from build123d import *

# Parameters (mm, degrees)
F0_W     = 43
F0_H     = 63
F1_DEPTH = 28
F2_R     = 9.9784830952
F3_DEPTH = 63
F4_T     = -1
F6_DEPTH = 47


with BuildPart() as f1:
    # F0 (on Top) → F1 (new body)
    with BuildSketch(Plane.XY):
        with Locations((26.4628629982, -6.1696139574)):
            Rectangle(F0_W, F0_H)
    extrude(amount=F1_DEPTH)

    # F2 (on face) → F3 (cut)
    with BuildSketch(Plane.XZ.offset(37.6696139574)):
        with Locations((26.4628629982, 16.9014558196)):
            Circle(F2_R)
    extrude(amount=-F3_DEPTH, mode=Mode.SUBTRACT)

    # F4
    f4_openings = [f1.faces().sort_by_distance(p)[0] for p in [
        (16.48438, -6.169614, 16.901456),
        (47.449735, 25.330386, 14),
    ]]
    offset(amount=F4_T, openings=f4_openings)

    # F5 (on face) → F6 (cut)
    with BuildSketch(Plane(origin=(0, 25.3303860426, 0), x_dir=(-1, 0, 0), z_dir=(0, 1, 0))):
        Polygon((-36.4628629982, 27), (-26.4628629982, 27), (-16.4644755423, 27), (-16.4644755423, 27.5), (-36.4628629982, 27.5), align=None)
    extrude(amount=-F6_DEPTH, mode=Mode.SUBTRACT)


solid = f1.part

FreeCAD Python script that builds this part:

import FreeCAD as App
import Part
import Sketcher
Q = App.Units.Quantity


def faces_at(feature, points):
    """Names of the faces that lie closest to the given points."""
    faces = feature.Shape.Faces
    near = lambda p: min(range(len(faces)), key=lambda i: faces[i].distToShape(Part.Vertex(*p))[0])
    return sorted({f"Face{near(p) + 1}" for p in points})


def add_polygon(sketch, points):
    """Adds a closed chain of lines whose ends are joined by coincident constraints."""
    first, n = sketch.GeometryCount, len(points)
    for a, b in zip(points, points[1:] + points[:1]):
        sketch.addGeometry(Part.LineSegment(App.Vector(*a, 0), App.Vector(*b, 0)), False)
    for i in range(n):
        sketch.addConstraint(Sketcher.Constraint("Coincident", first + i, 2, first + (i + 1) % n, 1))

doc = App.newDocument("Part")
body = doc.addObject("PartDesign::Body", "Body")

sketch1 = body.newObject("Sketcher::SketchObject", "Sketch")
sketch1.AttachmentSupport = (doc.getObject("XY_Plane"), [""])
sketch1.MapMode = "FlatFace"
add_polygon(sketch1, [(5, 25), (5, -38), (48, -38), (48, 25)])
sketch1.addConstraint([
    Sketcher.Constraint("Vertical", 0),
    Sketcher.Constraint("Horizontal", 1),
    Sketcher.Constraint("Vertical", 2),
    Sketcher.Constraint("Horizontal", 3),
    Sketcher.Constraint("DistanceX", 1, 1, 1, 2, Q("43 mm")),
    Sketcher.Constraint("DistanceY", 0, 2, 0, 1, Q("63 mm")),
    Sketcher.Constraint("DistanceX", -1, 1, 0, 2, Q("4.962863 mm")),
    Sketcher.Constraint("DistanceY", 0, 2, -1, 1, Q("37.669614 mm")),
])
pad1 = body.newObject("PartDesign::Pad", "Pad")
pad1.Profile = sketch1
pad1.Length = 28

sketch2 = body.newObject("Sketcher::SketchObject", "Sketch001")
sketch2.AttachmentSupport = (doc.getObject("XZ_Plane"), [""])
sketch2.MapMode = "FlatFace"
sketch2.AttachmentOffset = App.Placement(App.Vector(0, 0, 37.669614), App.Rotation())
sketch2.addGeometry(Part.Circle(App.Vector(26, 17, 0), App.Vector(0, 0, 1), 10), False)
sketch2.addConstraint([
    Sketcher.Constraint("Diameter", 0, Q("19.956966 mm")),
    Sketcher.Constraint("DistanceX", -1, 1, 0, 3, Q("26.462863 mm")),
    Sketcher.Constraint("DistanceY", -1, 1, 0, 3, Q("16.901456 mm")),
])
pocket1 = body.newObject("PartDesign::Pocket", "Pocket")
pocket1.Profile = sketch2
pocket1.Length = 63
doc.recompute()

thickness = body.newObject("PartDesign::Thickness", "Thickness")
thickness.Base = (pocket1, faces_at(pocket1, [(16.484, -6.17, 16.901), (9.263, 25.33, 14)]))
thickness.Value = 1
thickness.Reversed = True
thickness.Join = "Arc"

sketch3 = body.newObject("Sketcher::SketchObject", "Sketch002")
sketch3.AttachmentSupport = (doc.getObject("XZ_Plane"), [""])
sketch3.MapMode = "FlatFace"
sketch3.AttachmentOffset = App.Placement(App.Vector(0, 0, -25.330386), App.Rotation())
add_polygon(sketch3, [(36.5, 27), (16.5, 27), (16.5, 27.5), (36.5, 27.5)])
sketch3.addConstraint([
    Sketcher.Constraint("Horizontal", 0),
    Sketcher.Constraint("Vertical", 1),
    Sketcher.Constraint("Horizontal", 2),
    Sketcher.Constraint("Vertical", 3),
    Sketcher.Constraint("DistanceY", 1, 1, 1, 2, Q("0.5 mm")),
    Sketcher.Constraint("DistanceY", -1, 1, 0, 2, Q("27 mm")),
    Sketcher.Constraint("DistanceX", 0, 2, 0, 1, Q("19.998387 mm")),
    Sketcher.Constraint("DistanceX", -1, 1, 0, 2, Q("16.464476 mm")),
])
pocket2 = body.newObject("PartDesign::Pocket", "Pocket001")
pocket2.Profile = sketch3
pocket2.Length = 47
pocket2.Reversed = True

doc.recompute()
